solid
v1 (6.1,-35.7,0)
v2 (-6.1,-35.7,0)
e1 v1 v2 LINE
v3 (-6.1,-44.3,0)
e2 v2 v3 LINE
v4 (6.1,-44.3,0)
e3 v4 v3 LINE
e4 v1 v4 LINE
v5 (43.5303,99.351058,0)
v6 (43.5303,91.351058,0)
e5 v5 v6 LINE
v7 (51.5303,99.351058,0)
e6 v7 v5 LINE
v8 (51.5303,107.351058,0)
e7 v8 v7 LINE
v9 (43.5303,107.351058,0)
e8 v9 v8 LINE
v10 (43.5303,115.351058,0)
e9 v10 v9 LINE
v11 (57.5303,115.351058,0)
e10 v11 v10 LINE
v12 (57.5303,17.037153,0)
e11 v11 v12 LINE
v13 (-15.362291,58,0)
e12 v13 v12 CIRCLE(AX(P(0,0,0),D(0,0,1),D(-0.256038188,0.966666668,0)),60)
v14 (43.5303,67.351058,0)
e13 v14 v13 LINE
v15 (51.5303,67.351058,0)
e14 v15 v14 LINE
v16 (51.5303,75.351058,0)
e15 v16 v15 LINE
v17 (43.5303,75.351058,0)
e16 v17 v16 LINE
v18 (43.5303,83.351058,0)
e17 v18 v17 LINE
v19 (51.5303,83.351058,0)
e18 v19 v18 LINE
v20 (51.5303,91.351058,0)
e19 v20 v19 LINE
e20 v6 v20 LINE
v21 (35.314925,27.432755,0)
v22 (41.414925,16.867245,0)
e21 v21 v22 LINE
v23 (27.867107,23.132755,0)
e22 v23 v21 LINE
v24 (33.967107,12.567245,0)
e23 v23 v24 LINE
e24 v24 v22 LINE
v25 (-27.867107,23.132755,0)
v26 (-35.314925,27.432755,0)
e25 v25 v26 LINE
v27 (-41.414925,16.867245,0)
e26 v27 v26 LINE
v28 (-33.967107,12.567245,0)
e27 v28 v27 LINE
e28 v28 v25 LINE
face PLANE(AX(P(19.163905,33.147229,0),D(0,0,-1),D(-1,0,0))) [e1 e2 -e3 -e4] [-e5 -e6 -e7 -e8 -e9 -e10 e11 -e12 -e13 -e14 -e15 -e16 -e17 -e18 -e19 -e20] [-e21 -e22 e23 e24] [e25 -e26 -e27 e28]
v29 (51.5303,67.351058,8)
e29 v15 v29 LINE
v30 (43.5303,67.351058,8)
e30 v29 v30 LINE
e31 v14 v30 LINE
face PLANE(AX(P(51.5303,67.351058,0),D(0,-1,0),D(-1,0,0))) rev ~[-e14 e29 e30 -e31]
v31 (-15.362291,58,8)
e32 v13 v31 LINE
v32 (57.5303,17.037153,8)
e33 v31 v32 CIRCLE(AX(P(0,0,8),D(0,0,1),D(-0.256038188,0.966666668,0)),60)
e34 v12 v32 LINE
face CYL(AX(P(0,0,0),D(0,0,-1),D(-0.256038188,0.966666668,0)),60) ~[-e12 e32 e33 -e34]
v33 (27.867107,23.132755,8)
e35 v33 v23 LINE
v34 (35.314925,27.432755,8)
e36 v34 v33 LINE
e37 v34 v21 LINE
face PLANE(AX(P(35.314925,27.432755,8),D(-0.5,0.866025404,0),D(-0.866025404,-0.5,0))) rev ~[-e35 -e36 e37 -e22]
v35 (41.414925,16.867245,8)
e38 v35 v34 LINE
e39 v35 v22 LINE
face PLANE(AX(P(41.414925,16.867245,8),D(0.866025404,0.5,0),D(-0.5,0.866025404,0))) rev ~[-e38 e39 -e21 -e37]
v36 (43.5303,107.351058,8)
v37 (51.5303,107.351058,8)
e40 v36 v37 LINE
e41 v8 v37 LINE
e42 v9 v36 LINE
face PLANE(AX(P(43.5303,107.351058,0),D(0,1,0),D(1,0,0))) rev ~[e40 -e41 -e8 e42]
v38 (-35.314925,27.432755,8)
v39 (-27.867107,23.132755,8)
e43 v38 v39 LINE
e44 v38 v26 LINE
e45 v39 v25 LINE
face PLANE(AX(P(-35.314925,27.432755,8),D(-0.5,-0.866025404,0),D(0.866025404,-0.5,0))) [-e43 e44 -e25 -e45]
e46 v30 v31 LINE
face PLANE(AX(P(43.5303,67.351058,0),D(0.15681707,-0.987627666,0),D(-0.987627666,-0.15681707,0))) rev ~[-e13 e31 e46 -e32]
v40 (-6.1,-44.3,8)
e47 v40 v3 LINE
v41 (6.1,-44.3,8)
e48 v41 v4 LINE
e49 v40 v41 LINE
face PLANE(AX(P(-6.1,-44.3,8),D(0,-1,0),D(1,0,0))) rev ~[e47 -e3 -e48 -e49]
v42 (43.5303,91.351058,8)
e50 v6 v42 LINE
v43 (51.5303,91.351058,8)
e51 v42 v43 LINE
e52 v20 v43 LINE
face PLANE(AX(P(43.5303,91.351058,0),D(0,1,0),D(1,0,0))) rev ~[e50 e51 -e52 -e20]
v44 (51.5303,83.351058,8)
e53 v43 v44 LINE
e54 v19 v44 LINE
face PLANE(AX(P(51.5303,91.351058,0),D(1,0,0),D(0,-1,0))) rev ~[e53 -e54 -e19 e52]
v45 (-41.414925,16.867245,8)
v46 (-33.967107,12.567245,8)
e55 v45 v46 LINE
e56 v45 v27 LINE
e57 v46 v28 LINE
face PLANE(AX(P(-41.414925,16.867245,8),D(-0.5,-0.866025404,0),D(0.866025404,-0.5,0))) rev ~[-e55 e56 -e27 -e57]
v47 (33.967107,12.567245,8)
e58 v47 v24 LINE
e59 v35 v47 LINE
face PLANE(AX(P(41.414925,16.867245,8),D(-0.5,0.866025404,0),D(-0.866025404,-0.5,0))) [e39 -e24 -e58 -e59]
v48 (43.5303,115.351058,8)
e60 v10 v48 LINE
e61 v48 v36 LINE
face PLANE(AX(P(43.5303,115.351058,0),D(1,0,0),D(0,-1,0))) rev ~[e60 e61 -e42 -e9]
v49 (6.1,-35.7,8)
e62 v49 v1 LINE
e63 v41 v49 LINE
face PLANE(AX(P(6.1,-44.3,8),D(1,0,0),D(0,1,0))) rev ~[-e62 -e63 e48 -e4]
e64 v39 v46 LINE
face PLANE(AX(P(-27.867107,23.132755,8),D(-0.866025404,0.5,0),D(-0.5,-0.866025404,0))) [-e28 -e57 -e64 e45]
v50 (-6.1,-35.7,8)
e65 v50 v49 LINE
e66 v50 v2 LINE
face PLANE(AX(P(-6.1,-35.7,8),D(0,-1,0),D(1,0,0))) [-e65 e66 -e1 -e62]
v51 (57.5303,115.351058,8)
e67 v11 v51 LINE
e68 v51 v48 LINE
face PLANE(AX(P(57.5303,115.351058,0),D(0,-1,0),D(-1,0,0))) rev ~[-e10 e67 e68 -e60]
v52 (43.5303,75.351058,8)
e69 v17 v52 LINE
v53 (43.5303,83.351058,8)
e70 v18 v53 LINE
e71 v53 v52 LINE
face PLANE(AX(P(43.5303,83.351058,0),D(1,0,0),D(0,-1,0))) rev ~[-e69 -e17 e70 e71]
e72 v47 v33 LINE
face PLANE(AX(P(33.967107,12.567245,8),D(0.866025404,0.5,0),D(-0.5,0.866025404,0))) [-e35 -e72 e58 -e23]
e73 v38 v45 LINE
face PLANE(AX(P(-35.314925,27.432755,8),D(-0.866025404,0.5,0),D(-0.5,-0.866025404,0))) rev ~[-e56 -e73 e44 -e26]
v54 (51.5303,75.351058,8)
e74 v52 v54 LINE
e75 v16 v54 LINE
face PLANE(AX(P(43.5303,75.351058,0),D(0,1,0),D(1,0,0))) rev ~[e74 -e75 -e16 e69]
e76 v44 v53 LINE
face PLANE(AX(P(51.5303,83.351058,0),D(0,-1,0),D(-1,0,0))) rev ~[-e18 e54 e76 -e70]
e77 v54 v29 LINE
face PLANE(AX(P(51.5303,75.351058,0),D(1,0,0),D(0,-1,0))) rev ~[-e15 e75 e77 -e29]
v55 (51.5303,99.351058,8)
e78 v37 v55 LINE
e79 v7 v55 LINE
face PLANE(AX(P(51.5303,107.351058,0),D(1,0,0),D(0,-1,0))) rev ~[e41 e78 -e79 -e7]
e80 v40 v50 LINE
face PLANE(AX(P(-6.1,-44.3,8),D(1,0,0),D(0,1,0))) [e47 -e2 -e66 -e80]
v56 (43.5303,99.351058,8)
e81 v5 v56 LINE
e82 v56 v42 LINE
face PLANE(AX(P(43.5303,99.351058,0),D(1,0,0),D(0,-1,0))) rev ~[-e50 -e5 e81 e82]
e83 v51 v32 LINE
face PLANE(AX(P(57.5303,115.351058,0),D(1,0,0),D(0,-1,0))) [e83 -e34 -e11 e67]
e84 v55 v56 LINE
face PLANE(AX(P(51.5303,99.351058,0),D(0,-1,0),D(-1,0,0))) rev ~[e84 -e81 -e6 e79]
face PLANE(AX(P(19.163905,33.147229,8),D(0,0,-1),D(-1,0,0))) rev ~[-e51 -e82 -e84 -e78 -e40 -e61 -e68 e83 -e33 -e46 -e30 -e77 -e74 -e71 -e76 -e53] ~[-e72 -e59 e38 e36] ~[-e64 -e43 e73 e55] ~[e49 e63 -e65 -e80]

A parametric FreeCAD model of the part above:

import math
import FreeCAD as App
import Part
import Sketcher

V = App.Vector

doc = App.newDocument("Part")
params = doc.addObject("Spreadsheet::Sheet", "Params")
for row, (alias, value) in enumerate([
    ("sketch1_radius", "60 mm"),
    ("sketch1_width", "14 mm"),
    ("sketch1_width2", "8 mm"),
    ("pad1_length", "8 mm"),
    ("sketch2_width", "12.2 mm"),
    ("sketch2_height", "8.6 mm"),
], start=1):
    params.set(f"A{row}", alias)
    params.set(f"B{row}", "=" + value)
    params.setAlias(f"B{row}", alias)

body = doc.addObject("PartDesign::Body", "Body")

sketch1 = body.newObject("Sketcher::SketchObject", "Sketch")
sketch1.AttachmentSupport = (doc.getObject("XY_Plane"), [""])
sketch1.MapMode = "FlatFace"
sketch1.addGeometry(Part.LineSegment(V(58, 115, 0), V(44, 115, 0)), False)
sketch1.addGeometry(Part.LineSegment(V(44, 115, 0), V(44, 107, 0)), False)
sketch1.addGeometry(Part.LineSegment(V(44, 107, 0), V(52, 107, 0)), False)
sketch1.addGeometry(Part.LineSegment(V(52, 107, 0), V(52, 99, 0)), False)
sketch1.addGeometry(Part.LineSegment(V(52, 99, 0), V(44, 99, 0)), False)
sketch1.addGeometry(Part.LineSegment(V(44, 99, 0), V(44, 91, 0)), False)
sketch1.addGeometry(Part.LineSegment(V(44, 91, 0), V(52, 91, 0)), False)
sketch1.addGeometry(Part.LineSegment(V(52, 91, 0), V(52, 83, 0)), False)
sketch1.addGeometry(Part.LineSegment(V(52, 83, 0), V(44, 83, 0)), False)
sketch1.addGeometry(Part.LineSegment(V(44, 83, 0), V(44, 75, 0)), False)
sketch1.addGeometry(Part.LineSegment(V(44, 75, 0), V(52, 75, 0)), False)
sketch1.addGeometry(Part.LineSegment(V(52, 75, 0), V(52, 67, 0)), False)
sketch1.addGeometry(Part.LineSegment(V(52, 67, 0), V(44, 67, 0)), False)
sketch1.addGeometry(Part.LineSegment(V(44, 67, 0), V(-15, 58, 0)), False)
sketch1.addGeometry(Part.ArcOfCircle(Part.Circle(V(0, 0, 0), V(0, 0, 1), 60), math.radians(105), math.radians(376)), False)
sketch1.addGeometry(Part.LineSegment(V(58, 17, 0), V(58, 115, 0)), False)
sketch1.addConstraint(Sketcher.Constraint("Coincident", 0, 2, 1, 1))
sketch1.addConstraint(Sketcher.Constraint("Coincident", 1, 2, 2, 1))
sketch1.addConstraint(Sketcher.Constraint("Coincident", 2, 2, 3, 1))
sketch1.addConstraint(Sketcher.Constraint("Coincident", 3, 2, 4, 1))
sketch1.addConstraint(Sketcher.Constraint("Coincident", 4, 2, 5, 1))
sketch1.addConstraint(Sketcher.Constraint("Coincident", 5, 2, 6, 1))
sketch1.addConstraint(Sketcher.Constraint("Coincident", 6, 2, 7, 1))
sketch1.addConstraint(Sketcher.Constraint("Coincident", 7, 2, 8, 1))
sketch1.addConstraint(Sketcher.Constraint("Coincident", 8, 2, 9, 1))
sketch1.addConstraint(Sketcher.Constraint("Coincident", 9, 2, 10, 1))
sketch1.addConstraint(Sketcher.Constraint("Coincident", 10, 2, 11, 1))
sketch1.addConstraint(Sketcher.Constraint("Coincident", 11, 2, 12, 1))
sketch1.addConstraint(Sketcher.Constraint("Coincident", 12, 2, 13, 1))
sketch1.addConstraint(Sketcher.Constraint("Coincident", 13, 2, 14, 1))
sketch1.addConstraint(Sketcher.Constraint("Coincident", 14, 2, 15, 1))
sketch1.addConstraint(Sketcher.Constraint("Coincident", 15, 2, 0, 1))
sketch1.addConstraint(Sketcher.Constraint("Horizontal", 0))
sketch1.addConstraint(Sketcher.Constraint("Vertical", 1))
sketch1.addConstraint(Sketcher.Constraint("Horizontal", 2))
sketch1.addConstraint(Sketcher.Constraint("Vertical", 3))
sketch1.addConstraint(Sketcher.Constraint("Horizontal", 4))
sketch1.addConstraint(Sketcher.Constraint("Vertical", 5))
sketch1.addConstraint(Sketcher.Constraint("Horizontal", 6))
sketch1.addConstraint(Sketcher.Constraint("Vertical", 7))
sketch1.addConstraint(Sketcher.Constraint("Horizontal", 8))
sketch1.addConstraint(Sketcher.Constraint("Vertical", 9))
sketch1.addConstraint(Sketcher.Constraint("Horizontal", 10))
sketch1.addConstraint(Sketcher.Constraint("Vertical", 11))
sketch1.addConstraint(Sketcher.Constraint("Horizontal", 12))
sketch1.addConstraint(Sketcher.Constraint("Vertical", 15))
sketch1.addConstraint(Sketcher.Constraint("Coincident", 14, 3, -1, 1))
sketch1.addConstraint(Sketcher.Constraint("Vertical", 1, 2, 4, 2))
sketch1.addConstraint(Sketcher.Constraint("Vertical", 3, 2, 6, 2))
sketch1.addConstraint(Sketcher.Constraint("Vertical", 5, 2, 8, 2))
sketch1.addConstraint(Sketcher.Constraint("Vertical", 7, 2, 10, 2))
sketch1.addConstraint(Sketcher.Constraint("Vertical", 9, 2, 12, 2))
sketch1.addConstraint(Sketcher.Constraint("Equal", 12, 1))
sketch1.addConstraint(Sketcher.Constraint("Equal", 1, 3))
sketch1.addConstraint(Sketcher.Constraint("Equal", 3, 5))
sketch1.addConstraint(Sketcher.Constraint("Equal", 5, 7))
sketch1.addConstraint(Sketcher.Constraint("Equal", 7, 9))
sketch1.addConstraint(Sketcher.Constraint("Equal", 9, 11))
sketch1.addConstraint(Sketcher.Constraint("Radius", 14, 60.0))
sketch1.addConstraint(Sketcher.Constraint("DistanceX", 0, 2, 0, 1, 14.0))
sketch1.addConstraint(Sketcher.Constraint("DistanceX", 2, 1, 2, 2, 8.0))
sketch1.addConstraint(Sketcher.Constraint("DistanceY", -1, 1, 13, 2, 58.0))
sketch1.addConstraint(Sketcher.Constraint("DistanceX", -1, 1, 0, 2, 43.5303))
sketch1.addConstraint(Sketcher.Constraint("DistanceY", 15, 1, 15, 2, 98.313905))
sketch1.setExpression("Constraints[42]", "Params.sketch1_radius")
sketch1.setExpression("Constraints[43]", "Params.sketch1_width")
sketch1.setExpression("Constraints[44]", "Params.sketch1_width2")
pad1 = body.newObject("PartDesign::Pad", "Pad")
pad1.Profile = sketch1
pad1.setExpression("Length", "Params.pad1_length")

sketch2 = body.newObject("Sketcher::SketchObject", "Sketch001")
sketch2.AttachmentSupport = (doc.getObject("XY_Plane"), [""])
sketch2.MapMode = "FlatFace"
sketch2.AttachmentOffset = App.Placement(V(0, 0, 8), App.Rotation())
sketch2.addGeometry(Part.LineSegment(V(-6, -36, 0), V(-6, -44, 0)), False)
sketch2.addGeometry(Part.LineSegment(V(-6, -44, 0), V(6, -44, 0)), False)
sketch2.addGeometry(Part.LineSegment(V(6, -44, 0), V(6, -36, 0)), False)
sketch2.addGeometry(Part.LineSegment(V(6, -36, 0), V(-6, -36, 0)), False)
sketch2.addConstraint(Sketcher.Constraint("Coincident", 0, 2, 1, 1))
sketch2.addConstraint(Sketcher.Constraint("Coincident", 1, 2, 2, 1))
sketch2.addConstraint(Sketcher.Constraint("Coincident", 2, 2, 3, 1))
sketch2.addConstraint(Sketcher.Constraint("Coincident", 3, 2, 0, 1))
sketch2.addConstraint(Sketcher.Constraint("Vertical", 0))
sketch2.addConstraint(Sketcher.Constraint("Horizontal", 1))
sketch2.addConstraint(Sketcher.Constraint("Vertical", 2))
sketch2.addConstraint(Sketcher.Constraint("Horizontal", 3))
sketch2.addConstraint(Sketcher.Constraint("DistanceX", 1, 1, 1, 2, 12.2))
sketch2.addConstraint(Sketcher.Constraint("DistanceY", 0, 2, 0, 1, 8.6))
sketch2.addConstraint(Sketcher.Constraint("DistanceX", 0, 2, -1, 1, 6.1))
sketch2.addConstraint(Sketcher.Constraint("DistanceY", 0, 2, -1, 1, 44.3))
sketch2.setExpression("Constraints[8]", "Params.sketch2_width")
sketch2.setExpression("Constraints[9]", "Params.sketch2_height")
pocket1 = body.newObject("PartDesign::Pocket", "Pocket")
pocket1.Profile = sketch2
pocket1.Type = "ThroughAll"
doc.recompute()

polarpattern = body.newObject("PartDesign::PolarPattern", "PolarPattern")
polarpattern.Originals = [pocket1]
polarpattern.Axis = (doc.getObject("Z_Axis"), [""])
polarpattern.Angle = 360
polarpattern.Occurrences = 3
body.Tip = polarpattern

doc.recompute()
